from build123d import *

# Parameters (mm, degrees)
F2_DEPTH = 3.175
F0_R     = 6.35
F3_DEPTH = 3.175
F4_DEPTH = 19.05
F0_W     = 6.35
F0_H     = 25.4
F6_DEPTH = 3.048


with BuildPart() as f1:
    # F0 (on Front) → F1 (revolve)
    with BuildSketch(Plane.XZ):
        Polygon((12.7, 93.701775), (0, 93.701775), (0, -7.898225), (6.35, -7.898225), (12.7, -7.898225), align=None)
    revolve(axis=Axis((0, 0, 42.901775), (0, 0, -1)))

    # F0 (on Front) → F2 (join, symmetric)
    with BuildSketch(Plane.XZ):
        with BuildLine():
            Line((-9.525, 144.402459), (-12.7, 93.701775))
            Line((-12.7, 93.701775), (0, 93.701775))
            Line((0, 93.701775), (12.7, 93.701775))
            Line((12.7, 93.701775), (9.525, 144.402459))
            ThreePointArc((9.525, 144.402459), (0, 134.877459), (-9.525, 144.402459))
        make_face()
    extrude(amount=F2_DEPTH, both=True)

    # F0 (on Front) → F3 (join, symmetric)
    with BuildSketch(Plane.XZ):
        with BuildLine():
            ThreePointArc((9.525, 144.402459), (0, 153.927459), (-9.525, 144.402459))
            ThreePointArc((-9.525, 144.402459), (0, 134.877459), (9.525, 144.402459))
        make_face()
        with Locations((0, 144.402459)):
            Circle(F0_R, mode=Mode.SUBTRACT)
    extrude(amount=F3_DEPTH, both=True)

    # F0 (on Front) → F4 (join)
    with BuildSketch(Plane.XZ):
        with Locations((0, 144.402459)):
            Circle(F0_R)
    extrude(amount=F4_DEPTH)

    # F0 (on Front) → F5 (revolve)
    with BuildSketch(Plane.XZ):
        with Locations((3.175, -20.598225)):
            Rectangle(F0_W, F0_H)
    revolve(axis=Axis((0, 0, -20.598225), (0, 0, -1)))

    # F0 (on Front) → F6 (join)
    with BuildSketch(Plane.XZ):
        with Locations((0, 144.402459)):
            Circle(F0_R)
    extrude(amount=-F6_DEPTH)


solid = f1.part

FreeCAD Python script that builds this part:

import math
import FreeCAD as App
import Part
import Sketcher

V = App.Vector
Q = App.Units.Quantity

doc = App.newDocument("Part")
params = doc.addObject("Spreadsheet::Sheet", "Params")
for row, (alias, value) in enumerate([
    ("sketch1_height", "4 in"),
    ("sketch1_width", "0.5 in"),
    ("revolution_angle", "360 deg"),
    ("sketch2_width", "1 in"),
    ("sketch2_length", "2 in"),
    ("sketch2_radius", "0.375 in"),
    ("pad1_length", "0.25 in"),
    ("sketch3_diameter", "0.5 in"),
    ("sketch3_diameter2", "0.75 in"),
    ("pad2_length", "0.25 in"),
    ("sketch4_diameter", "0.5 in"),
    ("pad3_length", "0.75 in"),
    ("sketch5_height", "1 in"),
    ("sketch5_width", "0.25 in"),
    ("revolution2_angle", "360 deg"),
    ("sketch6_diameter", "0.5 in"),
    ("pad4_length", "0.12 in"),
], start=1):
    params.set(f"A{row}", alias)
    params.set(f"B{row}", "=" + value)
    params.setAlias(f"B{row}", alias)

body = doc.addObject("PartDesign::Body", "Body")

sketch1 = body.newObject("Sketcher::SketchObject", "Sketch")
sketch1.AttachmentSupport = (doc.getObject("XZ_Plane"), [""])
sketch1.MapMode = "FlatFace"
sketch1.addGeometry([
    Part.LineSegment(V(13, 94, 0), V(0, 94, 0)),
    Part.LineSegment(V(0, 94, 0), V(0, -8, 0)),
    Part.LineSegment(V(0, -8, 0), V(13, -8, 0)),
    Part.LineSegment(V(13, -8, 0), V(13, 94, 0)),
], False)
sketch1.addConstraint([
    Sketcher.Constraint("Coincident", 0, 2, 1, 1),
    Sketcher.Constraint("Coincident", 1, 2, 2, 1),
    Sketcher.Constraint("Coincident", 2, 2, 3, 1),
    Sketcher.Constraint("Coincident", 3, 2, 0, 1),
    Sketcher.Constraint("Horizontal", 0),
    Sketcher.Constraint("Vertical", 1),
    Sketcher.Constraint("Horizontal", 2),
    Sketcher.Constraint("Vertical", 3),
    Sketcher.Constraint("PointOnObject", 0, 2, -2),
    Sketcher.Constraint("DistanceY", 1, 2, 1, 1, Q("4 in")),
    Sketcher.Constraint("DistanceX", 0, 2, 0, 1, Q("0.5 in")),
    Sketcher.Constraint("DistanceY", -1, 1, 0, 2, 93.701775),
])
sketch1.setExpression("Constraints[9]", "Params.sketch1_height")
sketch1.setExpression("Constraints[10]", "Params.sketch1_width")
revolution = body.newObject("PartDesign::Revolution", "Revolution")
revolution.Profile = sketch1
revolution.ReferenceAxis = (sketch1, ["V_Axis"])
revolution.setExpression("Angle", "Params.revolution_angle")

sketch2 = body.newObject("Sketcher::SketchObject", "Sketch001")
sketch2.AttachmentSupport = (doc.getObject("XZ_Plane"), [""])
sketch2.MapMode = "FlatFace"
sketch2.addGeometry([
    Part.LineSegment(V(-10, 144, 0), V(-13, 94, 0)),
    Part.LineSegment(V(-13, 94, 0), V(13, 94, 0)),
    Part.LineSegment(V(13, 94, 0), V(10, 144, 0)),
    Part.ArcOfCircle(Part.Circle(V(0, 144, 0), V(0, 0, 1), 10), math.radians(180), math.radians(360)),
], False)
sketch2.addConstraint([
    Sketcher.Constraint("Coincident", 0, 2, 1, 1),
    Sketcher.Constraint("Coincident", 1, 2, 2, 1),
    Sketcher.Constraint("Coincident", 2, 2, 3, 2),
    Sketcher.Constraint("Coincident", 3, 1, 0, 1),
    Sketcher.Constraint("Horizontal", 1),
    Sketcher.Constraint("Symmetric", 2, 2, 3, 1, -2),
    Sketcher.Constraint("Horizontal", 3, 3, 2, 2),
    Sketcher.Constraint("Equal", 0, 2),
    Sketcher.Constraint("DistanceX", 1, 1, 1, 2, Q("1 in")),
    Sketcher.Constraint("Distance", 0, Q("2 in")),
    Sketcher.Constraint("Radius", 3, Q("0.375 in")),
    Sketcher.Constraint("DistanceY", -1, 1, 3, 3, 144.402459),
])
sketch2.setExpression("Constraints[8]", "Params.sketch2_width")
sketch2.setExpression("Constraints[9]", "Params.sketch2_length")
sketch2.setExpression("Constraints[10]", "Params.sketch2_radius")
pad1 = body.newObject("PartDesign::Pad", "Pad")
pad1.Profile = sketch2
pad1.setExpression("Length", "Params.pad1_length")
pad1.Midplane = True

sketch3 = body.newObject("Sketcher::SketchObject", "Sketch002")
sketch3.AttachmentSupport = (doc.getObject("XZ_Plane"), [""])
sketch3.MapMode = "FlatFace"
sketch3.addGeometry([
    Part.Circle(V(0, 144, 0), V(0, 0, 1), 10),
    Part.Circle(V(0, 144, 0), V(0, 0, 1), 6),
], False)
sketch3.addConstraint([
    Sketcher.Constraint("Coincident", 1, 3, 0, 3),
    Sketcher.Constraint("PointOnObject", 0, 3, -2),
    Sketcher.Constraint("Diameter", 1, Q("0.5 in")),
    Sketcher.Constraint("Diameter", 0, Q("0.75 in")),
    Sketcher.Constraint("DistanceY", -1, 1, 0, 3, 144.402459),
])
sketch3.setExpression("Constraints[2]", "Params.sketch3_diameter")
sketch3.setExpression("Constraints[3]", "Params.sketch3_diameter2")
pad2 = body.newObject("PartDesign::Pad", "Pad001")
pad2.Profile = sketch3
pad2.setExpression("Length", "Params.pad2_length")
pad2.Midplane = True

sketch4 = body.newObject("Sketcher::SketchObject", "Sketch003")
sketch4.AttachmentSupport = (doc.getObject("XZ_Plane"), [""])
sketch4.MapMode = "FlatFace"
sketch4.addGeometry(Part.Circle(V(0, 144, 0), V(0, 0, 1), 6), False)
sketch4.addConstraint([
    Sketcher.Constraint("PointOnObject", 0, 3, -2),
    Sketcher.Constraint("Diameter", 0, Q("0.5 in")),
    Sketcher.Constraint("DistanceY", -1, 1, 0, 3, 144.402459),
])
sketch4.setExpression("Constraints[1]", "Params.sketch4_diameter")
pad3 = body.newObject("PartDesign::Pad", "Pad002")
pad3.Profile = sketch4
pad3.setExpression("Length", "Params.pad3_length")

sketch5 = body.newObject("Sketcher::SketchObject", "Sketch004")
sketch5.AttachmentSupport = (doc.getObject("XZ_Plane"), [""])
sketch5.MapMode = "FlatFace"
sketch5.addGeometry([
    Part.LineSegment(V(0, -8, 0), V(0, -33, 0)),
    Part.LineSegment(V(0, -33, 0), V(6, -33, 0)),
    Part.LineSegment(V(6, -33, 0), V(6, -8, 0)),
    Part.LineSegment(V(6, -8, 0), V(0, -8, 0)),
], False)
sketch5.addConstraint([
    Sketcher.Constraint("Coincident", 0, 2, 1, 1),
    Sketcher.Constraint("Coincident", 1, 2, 2, 1),
    Sketcher.Constraint("Coincident", 2, 2, 3, 1),
    Sketcher.Constraint("Coincident", 3, 2, 0, 1),
    Sketcher.Constraint("Vertical", 0),
    Sketcher.Constraint("Horizontal", 1),
    Sketcher.Constraint("Vertical", 2),
    Sketcher.Constraint("Horizontal", 3),
    Sketcher.Constraint("PointOnObject", 0, 2, -2),
    Sketcher.Constraint("DistanceY", 0, 2, 0, 1, Q("1 in")),
    Sketcher.Constraint("DistanceX", 1, 1, 1, 2, Q("0.25 in")),
    Sketcher.Constraint("DistanceY", 0, 2, -1, 1, 33.298225),
])
sketch5.setExpression("Constraints[9]", "Params.sketch5_height")
sketch5.setExpression("Constraints[10]", "Params.sketch5_width")
revolution2 = body.newObject("PartDesign::Revolution", "Revolution001")
revolution2.Profile = sketch5
revolution2.ReferenceAxis = (sketch5, ["V_Axis"])
revolution2.setExpression("Angle", "Params.revolution2_angle")

sketch6 = body.newObject("Sketcher::SketchObject", "Sketch005")
sketch6.AttachmentSupport = (doc.getObject("XZ_Plane"), [""])
sketch6.MapMode = "FlatFace"
sketch6.addGeometry(Part.Circle(V(0, 144, 0), V(0, 0, 1), 6), False)
sketch6.addConstraint([
    Sketcher.Constraint("PointOnObject", 0, 3, -2),
    Sketcher.Constraint("Diameter", 0, Q("0.5 in")),
    Sketcher.Constraint("DistanceY", -1, 1, 0, 3, 144.402459),
])
sketch6.setExpression("Constraints[1]", "Params.sketch6_diameter")
pad4 = body.newObject("PartDesign::Pad", "Pad003")
pad4.Profile = sketch6
pad4.setExpression("Length", "Params.pad4_length")
pad4.Reversed = True

doc.recompute()
